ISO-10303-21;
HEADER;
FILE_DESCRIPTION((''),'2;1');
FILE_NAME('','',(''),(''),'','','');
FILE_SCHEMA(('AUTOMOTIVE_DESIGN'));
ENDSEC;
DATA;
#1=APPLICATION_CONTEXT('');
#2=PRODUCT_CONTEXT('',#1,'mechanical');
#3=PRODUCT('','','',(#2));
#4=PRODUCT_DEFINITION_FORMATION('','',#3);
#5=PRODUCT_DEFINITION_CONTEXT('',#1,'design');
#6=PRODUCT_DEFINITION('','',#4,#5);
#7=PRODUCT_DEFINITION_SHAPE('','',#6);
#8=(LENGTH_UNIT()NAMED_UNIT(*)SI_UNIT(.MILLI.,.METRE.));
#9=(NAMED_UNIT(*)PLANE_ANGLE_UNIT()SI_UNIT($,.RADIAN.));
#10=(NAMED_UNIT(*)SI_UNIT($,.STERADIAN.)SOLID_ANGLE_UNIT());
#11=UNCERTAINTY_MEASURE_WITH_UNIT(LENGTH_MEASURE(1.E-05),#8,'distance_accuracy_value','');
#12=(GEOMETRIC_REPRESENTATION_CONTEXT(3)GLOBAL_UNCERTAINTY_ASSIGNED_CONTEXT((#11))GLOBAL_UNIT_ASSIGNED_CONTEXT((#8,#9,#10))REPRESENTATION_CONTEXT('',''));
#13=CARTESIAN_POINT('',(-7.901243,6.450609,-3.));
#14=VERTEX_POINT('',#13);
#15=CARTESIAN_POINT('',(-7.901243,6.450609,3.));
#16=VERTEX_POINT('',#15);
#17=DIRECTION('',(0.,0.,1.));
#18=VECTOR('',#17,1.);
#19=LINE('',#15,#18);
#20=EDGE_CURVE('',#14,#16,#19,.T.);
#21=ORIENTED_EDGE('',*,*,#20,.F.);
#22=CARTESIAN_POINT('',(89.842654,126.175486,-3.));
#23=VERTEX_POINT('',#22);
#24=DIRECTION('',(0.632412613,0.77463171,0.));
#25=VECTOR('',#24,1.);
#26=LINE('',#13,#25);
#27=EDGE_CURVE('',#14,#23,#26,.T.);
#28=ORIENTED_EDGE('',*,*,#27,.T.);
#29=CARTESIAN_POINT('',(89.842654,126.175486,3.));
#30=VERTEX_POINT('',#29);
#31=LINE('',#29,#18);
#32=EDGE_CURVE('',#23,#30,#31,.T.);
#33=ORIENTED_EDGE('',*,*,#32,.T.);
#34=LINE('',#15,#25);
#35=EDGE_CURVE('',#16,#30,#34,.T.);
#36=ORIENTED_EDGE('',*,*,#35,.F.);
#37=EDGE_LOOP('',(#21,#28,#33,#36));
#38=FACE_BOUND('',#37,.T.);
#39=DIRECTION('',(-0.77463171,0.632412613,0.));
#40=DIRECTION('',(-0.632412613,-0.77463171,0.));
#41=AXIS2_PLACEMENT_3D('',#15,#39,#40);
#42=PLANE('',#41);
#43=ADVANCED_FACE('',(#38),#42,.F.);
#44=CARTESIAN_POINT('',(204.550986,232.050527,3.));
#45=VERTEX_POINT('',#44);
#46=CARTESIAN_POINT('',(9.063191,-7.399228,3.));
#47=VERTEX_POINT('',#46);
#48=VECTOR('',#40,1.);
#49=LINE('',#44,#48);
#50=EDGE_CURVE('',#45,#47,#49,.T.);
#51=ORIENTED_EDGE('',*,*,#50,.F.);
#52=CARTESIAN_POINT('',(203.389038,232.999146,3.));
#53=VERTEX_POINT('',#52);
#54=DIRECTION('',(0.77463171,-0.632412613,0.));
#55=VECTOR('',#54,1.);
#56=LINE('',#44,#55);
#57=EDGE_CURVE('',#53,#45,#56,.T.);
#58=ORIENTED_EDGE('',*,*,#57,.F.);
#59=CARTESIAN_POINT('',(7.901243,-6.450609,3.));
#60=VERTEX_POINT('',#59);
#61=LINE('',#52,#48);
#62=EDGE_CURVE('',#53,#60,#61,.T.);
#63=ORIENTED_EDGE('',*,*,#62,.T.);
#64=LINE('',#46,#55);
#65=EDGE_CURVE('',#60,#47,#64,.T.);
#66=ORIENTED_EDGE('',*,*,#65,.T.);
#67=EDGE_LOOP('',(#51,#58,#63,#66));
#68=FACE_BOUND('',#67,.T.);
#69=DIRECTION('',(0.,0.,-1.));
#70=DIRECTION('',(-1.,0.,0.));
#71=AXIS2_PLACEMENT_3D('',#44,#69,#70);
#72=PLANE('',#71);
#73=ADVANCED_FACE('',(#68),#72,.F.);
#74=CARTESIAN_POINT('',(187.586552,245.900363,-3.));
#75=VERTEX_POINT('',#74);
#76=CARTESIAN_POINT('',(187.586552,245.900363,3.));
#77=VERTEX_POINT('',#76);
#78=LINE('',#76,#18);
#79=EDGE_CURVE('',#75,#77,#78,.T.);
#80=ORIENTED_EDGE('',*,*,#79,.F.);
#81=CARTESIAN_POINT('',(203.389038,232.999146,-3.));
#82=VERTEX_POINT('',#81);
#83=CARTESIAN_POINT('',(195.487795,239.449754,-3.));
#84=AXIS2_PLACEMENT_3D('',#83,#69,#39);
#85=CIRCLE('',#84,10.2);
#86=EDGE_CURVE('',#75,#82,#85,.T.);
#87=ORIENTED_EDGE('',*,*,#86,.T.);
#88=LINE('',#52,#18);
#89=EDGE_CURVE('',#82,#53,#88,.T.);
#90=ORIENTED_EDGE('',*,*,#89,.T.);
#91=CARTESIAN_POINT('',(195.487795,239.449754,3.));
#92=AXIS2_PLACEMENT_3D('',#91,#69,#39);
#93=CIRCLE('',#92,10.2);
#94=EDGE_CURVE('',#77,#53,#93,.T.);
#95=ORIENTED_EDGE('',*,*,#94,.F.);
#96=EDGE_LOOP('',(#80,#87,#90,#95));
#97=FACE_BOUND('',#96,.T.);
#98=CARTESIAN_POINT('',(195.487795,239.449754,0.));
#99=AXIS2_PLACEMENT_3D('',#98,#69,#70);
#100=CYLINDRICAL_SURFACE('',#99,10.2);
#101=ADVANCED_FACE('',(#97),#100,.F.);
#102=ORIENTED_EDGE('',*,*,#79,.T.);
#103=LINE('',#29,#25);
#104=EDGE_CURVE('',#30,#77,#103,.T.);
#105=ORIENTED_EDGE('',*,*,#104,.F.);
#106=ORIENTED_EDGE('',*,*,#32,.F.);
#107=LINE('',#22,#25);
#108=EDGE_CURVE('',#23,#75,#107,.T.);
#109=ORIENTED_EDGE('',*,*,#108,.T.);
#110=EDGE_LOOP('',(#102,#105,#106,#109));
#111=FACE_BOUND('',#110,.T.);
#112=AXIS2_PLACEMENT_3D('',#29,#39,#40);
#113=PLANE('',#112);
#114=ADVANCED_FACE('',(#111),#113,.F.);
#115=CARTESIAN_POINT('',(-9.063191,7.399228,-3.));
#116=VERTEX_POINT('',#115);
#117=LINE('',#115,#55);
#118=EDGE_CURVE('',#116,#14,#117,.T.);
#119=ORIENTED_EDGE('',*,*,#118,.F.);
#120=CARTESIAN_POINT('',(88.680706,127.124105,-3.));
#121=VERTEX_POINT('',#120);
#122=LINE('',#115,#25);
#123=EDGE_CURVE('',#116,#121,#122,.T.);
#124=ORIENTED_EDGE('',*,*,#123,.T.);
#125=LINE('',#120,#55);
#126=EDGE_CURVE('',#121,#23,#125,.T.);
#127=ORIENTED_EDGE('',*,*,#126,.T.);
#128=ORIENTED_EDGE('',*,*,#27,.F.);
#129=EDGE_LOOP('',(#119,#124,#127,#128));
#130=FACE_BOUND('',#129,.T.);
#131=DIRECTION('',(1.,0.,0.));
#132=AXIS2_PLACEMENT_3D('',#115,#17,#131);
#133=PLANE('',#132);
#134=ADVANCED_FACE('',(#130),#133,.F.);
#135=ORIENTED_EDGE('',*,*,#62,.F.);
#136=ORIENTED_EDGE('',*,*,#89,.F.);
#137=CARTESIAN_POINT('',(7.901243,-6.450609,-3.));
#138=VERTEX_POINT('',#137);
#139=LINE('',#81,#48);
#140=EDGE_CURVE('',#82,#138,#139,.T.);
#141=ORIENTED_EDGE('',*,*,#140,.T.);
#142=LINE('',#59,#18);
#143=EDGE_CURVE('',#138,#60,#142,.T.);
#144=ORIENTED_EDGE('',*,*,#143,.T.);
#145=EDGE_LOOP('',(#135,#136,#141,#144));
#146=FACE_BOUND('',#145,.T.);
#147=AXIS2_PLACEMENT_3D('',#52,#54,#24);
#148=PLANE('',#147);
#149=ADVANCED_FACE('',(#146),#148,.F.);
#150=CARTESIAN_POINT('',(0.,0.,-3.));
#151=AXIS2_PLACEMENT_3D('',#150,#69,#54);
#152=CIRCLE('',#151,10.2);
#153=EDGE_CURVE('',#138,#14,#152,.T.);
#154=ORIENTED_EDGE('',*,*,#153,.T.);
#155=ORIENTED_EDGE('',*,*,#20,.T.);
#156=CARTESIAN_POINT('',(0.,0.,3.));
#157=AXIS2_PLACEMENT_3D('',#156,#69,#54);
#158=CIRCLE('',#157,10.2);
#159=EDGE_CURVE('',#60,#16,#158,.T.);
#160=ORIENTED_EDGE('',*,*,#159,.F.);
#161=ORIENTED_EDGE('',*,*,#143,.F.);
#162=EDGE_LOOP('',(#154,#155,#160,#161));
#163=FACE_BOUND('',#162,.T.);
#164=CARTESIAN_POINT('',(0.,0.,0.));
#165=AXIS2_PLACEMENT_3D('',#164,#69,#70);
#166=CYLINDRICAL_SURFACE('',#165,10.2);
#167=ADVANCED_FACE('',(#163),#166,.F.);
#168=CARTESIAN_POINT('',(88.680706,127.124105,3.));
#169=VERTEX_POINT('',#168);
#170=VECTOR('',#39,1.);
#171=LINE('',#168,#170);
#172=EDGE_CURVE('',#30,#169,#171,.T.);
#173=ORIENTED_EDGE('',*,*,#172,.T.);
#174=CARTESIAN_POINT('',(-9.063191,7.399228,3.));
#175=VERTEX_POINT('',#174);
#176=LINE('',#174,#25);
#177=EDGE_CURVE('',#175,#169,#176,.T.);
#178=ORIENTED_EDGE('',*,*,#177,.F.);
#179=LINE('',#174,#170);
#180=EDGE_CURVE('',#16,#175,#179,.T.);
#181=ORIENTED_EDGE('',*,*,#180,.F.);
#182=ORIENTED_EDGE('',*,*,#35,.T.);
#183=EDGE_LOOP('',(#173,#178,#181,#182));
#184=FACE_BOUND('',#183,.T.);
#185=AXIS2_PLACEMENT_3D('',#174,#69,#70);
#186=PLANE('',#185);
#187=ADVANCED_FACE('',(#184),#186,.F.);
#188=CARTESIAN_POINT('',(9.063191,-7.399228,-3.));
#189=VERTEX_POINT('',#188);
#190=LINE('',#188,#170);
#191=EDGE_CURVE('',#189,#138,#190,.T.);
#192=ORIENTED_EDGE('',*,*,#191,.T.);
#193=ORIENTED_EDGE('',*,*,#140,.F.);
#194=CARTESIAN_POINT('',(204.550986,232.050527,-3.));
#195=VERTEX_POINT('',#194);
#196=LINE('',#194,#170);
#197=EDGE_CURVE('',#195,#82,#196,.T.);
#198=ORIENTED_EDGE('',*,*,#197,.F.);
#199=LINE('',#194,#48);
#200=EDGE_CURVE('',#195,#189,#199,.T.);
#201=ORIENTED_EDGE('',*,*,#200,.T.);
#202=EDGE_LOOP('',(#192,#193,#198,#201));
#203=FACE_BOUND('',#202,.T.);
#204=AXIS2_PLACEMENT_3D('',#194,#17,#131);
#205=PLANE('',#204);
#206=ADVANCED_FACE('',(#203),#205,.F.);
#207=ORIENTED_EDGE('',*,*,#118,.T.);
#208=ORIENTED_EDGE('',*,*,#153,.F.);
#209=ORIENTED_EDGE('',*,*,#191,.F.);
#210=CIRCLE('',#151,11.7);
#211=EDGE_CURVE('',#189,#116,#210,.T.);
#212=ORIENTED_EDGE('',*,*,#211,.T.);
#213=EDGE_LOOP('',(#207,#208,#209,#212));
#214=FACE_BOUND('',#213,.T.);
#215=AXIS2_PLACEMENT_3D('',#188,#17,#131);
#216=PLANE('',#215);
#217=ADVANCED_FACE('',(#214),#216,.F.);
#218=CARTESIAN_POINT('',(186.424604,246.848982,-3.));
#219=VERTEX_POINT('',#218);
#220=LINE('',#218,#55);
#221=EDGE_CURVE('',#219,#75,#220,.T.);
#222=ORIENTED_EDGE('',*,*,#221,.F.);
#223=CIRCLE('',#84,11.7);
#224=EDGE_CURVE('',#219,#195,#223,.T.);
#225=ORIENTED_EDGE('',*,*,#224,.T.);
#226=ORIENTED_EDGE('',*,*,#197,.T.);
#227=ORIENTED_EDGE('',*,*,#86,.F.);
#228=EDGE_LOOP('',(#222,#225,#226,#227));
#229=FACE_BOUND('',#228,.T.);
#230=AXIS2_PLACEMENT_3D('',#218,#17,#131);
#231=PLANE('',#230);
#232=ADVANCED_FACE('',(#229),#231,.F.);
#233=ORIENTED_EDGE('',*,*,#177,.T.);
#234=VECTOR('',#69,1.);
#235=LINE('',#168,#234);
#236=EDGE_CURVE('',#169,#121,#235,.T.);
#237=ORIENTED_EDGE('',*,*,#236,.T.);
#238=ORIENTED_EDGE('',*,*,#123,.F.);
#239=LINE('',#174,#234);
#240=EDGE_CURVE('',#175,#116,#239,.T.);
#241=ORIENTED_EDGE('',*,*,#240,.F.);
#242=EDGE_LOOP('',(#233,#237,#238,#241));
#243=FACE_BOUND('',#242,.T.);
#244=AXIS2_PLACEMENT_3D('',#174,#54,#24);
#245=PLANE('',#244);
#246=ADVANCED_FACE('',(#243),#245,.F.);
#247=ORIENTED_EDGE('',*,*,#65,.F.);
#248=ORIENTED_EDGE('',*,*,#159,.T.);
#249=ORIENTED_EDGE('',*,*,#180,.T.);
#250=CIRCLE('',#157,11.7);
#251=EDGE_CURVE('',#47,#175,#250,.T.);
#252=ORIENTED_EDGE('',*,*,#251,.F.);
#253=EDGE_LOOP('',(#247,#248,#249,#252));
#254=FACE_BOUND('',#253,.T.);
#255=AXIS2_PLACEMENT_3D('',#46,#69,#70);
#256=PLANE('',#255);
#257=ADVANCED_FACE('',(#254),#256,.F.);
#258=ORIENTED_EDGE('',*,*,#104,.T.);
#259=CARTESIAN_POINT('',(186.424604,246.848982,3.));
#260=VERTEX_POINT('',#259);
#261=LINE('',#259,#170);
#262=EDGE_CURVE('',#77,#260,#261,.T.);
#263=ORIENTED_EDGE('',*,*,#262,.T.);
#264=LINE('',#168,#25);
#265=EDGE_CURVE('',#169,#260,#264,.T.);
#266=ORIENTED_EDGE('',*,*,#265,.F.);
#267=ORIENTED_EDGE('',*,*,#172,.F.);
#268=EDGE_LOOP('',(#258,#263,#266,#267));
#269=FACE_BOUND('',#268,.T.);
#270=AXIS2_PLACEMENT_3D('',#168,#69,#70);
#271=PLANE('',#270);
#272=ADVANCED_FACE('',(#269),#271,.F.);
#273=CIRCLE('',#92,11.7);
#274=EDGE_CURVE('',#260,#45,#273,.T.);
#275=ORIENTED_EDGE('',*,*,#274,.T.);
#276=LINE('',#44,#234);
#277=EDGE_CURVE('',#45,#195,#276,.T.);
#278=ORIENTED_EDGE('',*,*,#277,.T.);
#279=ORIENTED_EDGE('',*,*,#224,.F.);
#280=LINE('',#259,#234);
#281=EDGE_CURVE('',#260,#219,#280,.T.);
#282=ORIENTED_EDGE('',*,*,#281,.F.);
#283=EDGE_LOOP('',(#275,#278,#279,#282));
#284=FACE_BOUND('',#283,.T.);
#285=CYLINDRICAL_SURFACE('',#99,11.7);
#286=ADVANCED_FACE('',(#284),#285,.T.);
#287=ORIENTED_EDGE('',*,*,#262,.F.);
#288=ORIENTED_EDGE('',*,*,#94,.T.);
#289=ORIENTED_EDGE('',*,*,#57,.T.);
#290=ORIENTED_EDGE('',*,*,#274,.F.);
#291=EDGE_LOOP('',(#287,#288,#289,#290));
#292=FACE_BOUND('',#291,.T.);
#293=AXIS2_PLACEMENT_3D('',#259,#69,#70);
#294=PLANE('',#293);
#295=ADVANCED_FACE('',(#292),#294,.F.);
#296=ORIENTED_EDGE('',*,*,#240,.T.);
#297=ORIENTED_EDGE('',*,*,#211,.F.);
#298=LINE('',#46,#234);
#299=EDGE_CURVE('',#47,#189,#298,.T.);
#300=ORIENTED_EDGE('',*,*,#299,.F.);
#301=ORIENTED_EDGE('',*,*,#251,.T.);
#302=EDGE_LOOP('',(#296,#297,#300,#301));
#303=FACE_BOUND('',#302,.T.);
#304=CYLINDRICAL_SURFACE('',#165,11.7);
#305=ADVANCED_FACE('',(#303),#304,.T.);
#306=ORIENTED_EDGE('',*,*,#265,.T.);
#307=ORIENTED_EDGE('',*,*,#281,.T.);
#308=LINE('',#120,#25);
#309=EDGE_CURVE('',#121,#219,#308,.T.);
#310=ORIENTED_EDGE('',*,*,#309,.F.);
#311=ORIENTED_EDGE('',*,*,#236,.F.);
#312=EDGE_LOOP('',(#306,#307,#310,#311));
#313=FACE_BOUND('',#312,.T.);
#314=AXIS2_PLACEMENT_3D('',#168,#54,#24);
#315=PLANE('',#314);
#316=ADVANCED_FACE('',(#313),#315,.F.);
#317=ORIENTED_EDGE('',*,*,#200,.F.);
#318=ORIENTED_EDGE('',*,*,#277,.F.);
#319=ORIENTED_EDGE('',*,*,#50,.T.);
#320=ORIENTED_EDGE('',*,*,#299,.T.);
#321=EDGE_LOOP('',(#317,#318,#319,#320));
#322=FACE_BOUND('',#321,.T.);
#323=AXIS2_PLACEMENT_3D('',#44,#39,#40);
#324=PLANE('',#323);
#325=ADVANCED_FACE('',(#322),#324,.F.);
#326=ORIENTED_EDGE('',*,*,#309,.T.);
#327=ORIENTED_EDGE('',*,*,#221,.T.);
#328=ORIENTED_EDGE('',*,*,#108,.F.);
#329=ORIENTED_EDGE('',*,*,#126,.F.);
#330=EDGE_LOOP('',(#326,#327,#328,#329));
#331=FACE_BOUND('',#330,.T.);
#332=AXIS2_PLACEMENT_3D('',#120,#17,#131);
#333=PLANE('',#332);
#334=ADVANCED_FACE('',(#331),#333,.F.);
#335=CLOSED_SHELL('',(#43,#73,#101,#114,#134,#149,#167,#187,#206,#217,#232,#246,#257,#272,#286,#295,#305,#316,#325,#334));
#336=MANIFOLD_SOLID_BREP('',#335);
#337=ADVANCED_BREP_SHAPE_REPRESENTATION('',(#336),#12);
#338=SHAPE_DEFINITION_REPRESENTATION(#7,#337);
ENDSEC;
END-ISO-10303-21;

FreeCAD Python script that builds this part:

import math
import FreeCAD as App
import Part
import Sketcher

doc = App.newDocument("Part")
body = doc.addObject("PartDesign::Body", "Body")

# Sketch on an angled plane
sketch1 = body.newObject("Sketcher::SketchObject", "Sketch")
sketch1.Placement = App.Placement(App.Vector(89.842654, 126.175486, 0), App.Rotation(App.Vector(-0.77463171, 0.632412613, 0), App.Vector(0, 0, -0.999999999), App.Vector(-0.632412613, -0.77463171, 0), "ZXY"))
sketch1.addGeometry([
    Part.LineSegment(App.Vector(0, 3, 0), App.Vector(0, -3, 0)),
    Part.LineSegment(App.Vector(0, -3, 0), App.Vector(1.5, -3, 0)),
    Part.LineSegment(App.Vector(1.5, -3, 0), App.Vector(1.5, 3, 0)),
    Part.LineSegment(App.Vector(1.5, 3, 0), App.Vector(0, 3, 0)),
], False)
sketch1.addConstraint([
    Sketcher.Constraint("Coincident", 0, 2, 1, 1),
    Sketcher.Constraint("Coincident", 1, 2, 2, 1),
    Sketcher.Constraint("Coincident", 2, 2, 3, 1),
    Sketcher.Constraint("Coincident", 3, 2, 0, 1),
    Sketcher.Constraint("Vertical", 0),
    Sketcher.Constraint("Horizontal", 1),
    Sketcher.Constraint("Vertical", 2),
    Sketcher.Constraint("Horizontal", 3),
    Sketcher.Constraint("Symmetric", 0, 2, 3, 2, -1, 1),
    Sketcher.Constraint("DistanceY", 0, 2, 0, 1, 6.0),
    Sketcher.Constraint("DistanceX", 1, 1, 1, 2, 1.5),
])

# Sketch on XY plane
sketch2 = body.newObject("Sketcher::SketchObject", "Sketch001")
sketch2.AttachmentSupport = (doc.getObject("XY_Plane"), [""])
sketch2.MapMode = "FlatFace"
sketch2.addGeometry([
    Part.LineSegment(App.Vector(187.586552, 245.900363, 0), App.Vector(-7.901243, 6.450609, 0)),
    Part.ArcOfCircle(Part.Circle(App.Vector(0, 0, 0), App.Vector(0, 0, 1), 10.2), math.radians(140.771654), math.radians(320.771654)),
    Part.LineSegment(App.Vector(7.901243, -6.450609, 0), App.Vector(203.389038, 232.999146, 0)),
    Part.ArcOfCircle(Part.Circle(App.Vector(195.487795, 239.449754, 0), App.Vector(0, 0, 1), 10.2), math.radians(-39.228346), math.radians(140.771654)),
], False)
sketch2.addConstraint([
    Sketcher.Constraint("Tangent", 0, 2, 1, 1),
    Sketcher.Constraint("Tangent", 1, 2, 2, 1),
    Sketcher.Constraint("Tangent", 2, 2, 3, 1),
    Sketcher.Constraint("Tangent", 3, 2, 0, 1),
    Sketcher.Constraint("Coincident", 1, 3, -1, 1),
    Sketcher.Constraint("Equal", 1, 3),
    Sketcher.Constraint("Radius", 1, 10.2),
    Sketcher.Constraint("Distance", 0, 309.11432),
    Sketcher.Constraint("DistanceY", -1, 1, 0, 2, 6.450609),
])
doc.recompute()

additivepipe = body.newObject("PartDesign::AdditivePipe", "AdditivePipe")
additivepipe.Profile = sketch1
additivepipe.Spine = (sketch2, ["Edge1", "Edge2", "Edge3", "Edge4"])

doc.recompute()
